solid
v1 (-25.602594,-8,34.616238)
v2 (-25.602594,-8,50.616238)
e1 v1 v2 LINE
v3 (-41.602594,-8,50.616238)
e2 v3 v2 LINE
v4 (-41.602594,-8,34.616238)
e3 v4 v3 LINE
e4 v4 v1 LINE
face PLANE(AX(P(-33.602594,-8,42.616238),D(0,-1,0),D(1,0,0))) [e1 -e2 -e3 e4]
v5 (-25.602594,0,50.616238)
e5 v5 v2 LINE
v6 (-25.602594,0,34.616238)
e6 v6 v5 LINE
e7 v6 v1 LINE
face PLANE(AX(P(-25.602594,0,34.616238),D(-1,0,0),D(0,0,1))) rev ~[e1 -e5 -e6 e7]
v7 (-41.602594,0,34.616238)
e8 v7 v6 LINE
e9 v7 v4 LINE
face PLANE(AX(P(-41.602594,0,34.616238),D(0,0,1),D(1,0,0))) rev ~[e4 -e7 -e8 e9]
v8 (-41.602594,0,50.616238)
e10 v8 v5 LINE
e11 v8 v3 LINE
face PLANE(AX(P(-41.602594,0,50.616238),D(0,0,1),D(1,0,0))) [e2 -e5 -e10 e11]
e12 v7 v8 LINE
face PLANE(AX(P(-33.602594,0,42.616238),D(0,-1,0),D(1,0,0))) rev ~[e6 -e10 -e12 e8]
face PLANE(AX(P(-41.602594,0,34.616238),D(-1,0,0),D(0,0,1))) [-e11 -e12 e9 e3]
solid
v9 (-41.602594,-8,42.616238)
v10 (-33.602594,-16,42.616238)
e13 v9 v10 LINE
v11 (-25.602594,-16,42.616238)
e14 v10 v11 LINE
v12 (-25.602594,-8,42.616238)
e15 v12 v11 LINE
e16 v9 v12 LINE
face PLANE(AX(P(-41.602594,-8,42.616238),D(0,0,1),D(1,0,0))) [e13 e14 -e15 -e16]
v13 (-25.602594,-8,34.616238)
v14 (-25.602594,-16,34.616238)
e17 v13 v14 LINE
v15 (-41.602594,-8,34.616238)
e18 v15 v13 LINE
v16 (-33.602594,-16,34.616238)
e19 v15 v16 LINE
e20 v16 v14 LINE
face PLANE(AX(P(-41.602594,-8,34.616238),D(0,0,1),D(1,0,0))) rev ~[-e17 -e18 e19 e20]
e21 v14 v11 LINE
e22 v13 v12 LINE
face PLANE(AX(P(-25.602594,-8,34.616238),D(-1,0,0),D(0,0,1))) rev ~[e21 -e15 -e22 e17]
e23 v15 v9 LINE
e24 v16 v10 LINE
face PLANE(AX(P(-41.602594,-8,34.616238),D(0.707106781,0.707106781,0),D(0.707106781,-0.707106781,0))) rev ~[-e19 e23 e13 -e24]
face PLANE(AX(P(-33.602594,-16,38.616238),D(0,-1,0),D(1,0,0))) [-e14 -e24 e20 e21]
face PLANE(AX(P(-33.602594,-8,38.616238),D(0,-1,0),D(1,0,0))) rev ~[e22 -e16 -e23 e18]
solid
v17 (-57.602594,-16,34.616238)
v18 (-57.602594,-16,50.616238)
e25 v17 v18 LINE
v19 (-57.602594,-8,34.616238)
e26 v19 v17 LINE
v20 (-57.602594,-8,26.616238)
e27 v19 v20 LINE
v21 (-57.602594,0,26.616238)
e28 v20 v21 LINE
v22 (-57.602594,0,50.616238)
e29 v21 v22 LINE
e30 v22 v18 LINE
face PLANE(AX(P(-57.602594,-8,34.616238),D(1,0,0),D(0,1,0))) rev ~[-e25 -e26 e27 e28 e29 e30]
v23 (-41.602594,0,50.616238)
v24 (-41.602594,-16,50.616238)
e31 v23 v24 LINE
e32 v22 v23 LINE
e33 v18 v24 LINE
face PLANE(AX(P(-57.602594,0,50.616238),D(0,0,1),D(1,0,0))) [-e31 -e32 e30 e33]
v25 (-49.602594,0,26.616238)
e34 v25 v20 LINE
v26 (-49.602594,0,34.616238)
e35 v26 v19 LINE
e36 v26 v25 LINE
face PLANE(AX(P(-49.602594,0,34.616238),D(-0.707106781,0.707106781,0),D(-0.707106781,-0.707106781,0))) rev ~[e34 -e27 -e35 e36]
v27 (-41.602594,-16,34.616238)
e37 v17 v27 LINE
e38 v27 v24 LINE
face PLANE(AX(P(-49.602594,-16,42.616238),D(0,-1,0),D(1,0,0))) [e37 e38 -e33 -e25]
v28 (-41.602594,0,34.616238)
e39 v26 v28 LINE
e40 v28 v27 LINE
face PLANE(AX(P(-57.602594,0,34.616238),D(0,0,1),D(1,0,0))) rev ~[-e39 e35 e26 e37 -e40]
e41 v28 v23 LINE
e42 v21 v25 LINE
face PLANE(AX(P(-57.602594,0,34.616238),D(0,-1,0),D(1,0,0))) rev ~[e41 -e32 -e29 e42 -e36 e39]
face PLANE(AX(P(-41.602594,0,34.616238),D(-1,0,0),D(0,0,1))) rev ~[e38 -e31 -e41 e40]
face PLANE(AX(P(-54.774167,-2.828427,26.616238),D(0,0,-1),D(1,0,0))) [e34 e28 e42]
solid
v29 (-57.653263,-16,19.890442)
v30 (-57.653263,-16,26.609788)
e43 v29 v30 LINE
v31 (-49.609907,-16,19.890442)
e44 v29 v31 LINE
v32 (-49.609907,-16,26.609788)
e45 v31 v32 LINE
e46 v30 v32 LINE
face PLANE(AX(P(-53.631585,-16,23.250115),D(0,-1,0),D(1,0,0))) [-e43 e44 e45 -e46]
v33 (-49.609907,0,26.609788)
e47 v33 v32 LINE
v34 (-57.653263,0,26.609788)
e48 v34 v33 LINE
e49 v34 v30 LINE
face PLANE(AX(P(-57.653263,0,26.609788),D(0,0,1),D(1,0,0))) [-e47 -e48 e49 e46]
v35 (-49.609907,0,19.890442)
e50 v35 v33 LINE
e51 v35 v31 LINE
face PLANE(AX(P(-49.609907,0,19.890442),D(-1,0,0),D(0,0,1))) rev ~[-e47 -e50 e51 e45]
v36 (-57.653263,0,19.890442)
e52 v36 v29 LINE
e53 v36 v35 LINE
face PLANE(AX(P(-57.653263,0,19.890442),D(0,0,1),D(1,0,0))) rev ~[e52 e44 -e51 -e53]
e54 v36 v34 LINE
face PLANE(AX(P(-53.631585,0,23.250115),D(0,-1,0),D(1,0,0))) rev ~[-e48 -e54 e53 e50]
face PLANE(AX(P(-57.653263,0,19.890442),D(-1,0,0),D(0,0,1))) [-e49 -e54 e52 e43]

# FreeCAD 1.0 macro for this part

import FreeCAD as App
import Part
import Sketcher
from FreeCAD import Vector
Q = App.Units.Quantity

doc = App.newDocument("Part")
params = doc.addObject("Spreadsheet::Sheet", "Params")
for row, (alias, value) in enumerate([
    ("sketch1_width", "16 mm"),
    ("pad1_length", "8 mm"),
    ("sketch2_width", "16 mm"),
    ("pad2_length", "16 mm"),
    ("sketch3_width", "8 mm"),
    ("pad3_length", "8 mm"),
    ("sketch4_width", "16 mm"),
    ("sketch4_height", "8 mm"),
    ("pad4_length", "8 mm"),
    ("sketch5_width", "8 mm"),
    ("pocket1_length", "8 mm"),
    ("pad5_length", "16 mm"),
], start=1):
    params.set(f"A{row}", alias)
    params.set(f"B{row}", "=" + value)
    params.setAlias(f"B{row}", alias)

body = doc.addObject("PartDesign::Body", "Body")

# Sketch on XZ plane
sketch1 = body.newObject("Sketcher::SketchObject", "Sketch")
sketch1.AttachmentSupport = (doc.getObject("XZ_Plane"), [""])
sketch1.MapMode = "FlatFace"
sketch1.addGeometry([
    Part.LineSegment(Vector(-42, 51, 0), Vector(-42, 35, 0)),
    Part.LineSegment(Vector(-42, 35, 0), Vector(-26, 35, 0)),
    Part.LineSegment(Vector(-26, 35, 0), Vector(-26, 51, 0)),
    Part.LineSegment(Vector(-26, 51, 0), Vector(-42, 51, 0)),
], False)
sketch1.addConstraint([
    Sketcher.Constraint("Coincident", 0, 2, 1, 1),
    Sketcher.Constraint("Coincident", 1, 2, 2, 1),
    Sketcher.Constraint("Coincident", 2, 2, 3, 1),
    Sketcher.Constraint("Coincident", 3, 2, 0, 1),
    Sketcher.Constraint("Vertical", 0),
    Sketcher.Constraint("Horizontal", 1),
    Sketcher.Constraint("Vertical", 2),
    Sketcher.Constraint("Horizontal", 3),
    Sketcher.Constraint("Equal", 3, 0),
    Sketcher.Constraint("DistanceX", 1, 1, 1, 2, Q("16 mm")),
    Sketcher.Constraint("DistanceY", -1, 1, 0, 2, Q("34.616238 mm")),
    Sketcher.Constraint("DistanceX", 0, 2, -1, 1, Q("41.602594 mm")),
])
sketch1.setExpression("Constraints[9]", "Params.sketch1_width")
pad1 = body.newObject("PartDesign::Pad", "Pad")
pad1.Profile = sketch1
pad1.setExpression("Length", "Params.pad1_length")
body2 = doc.addObject("PartDesign::Body", "Body001")

# Sketch on XZ plane
sketch2 = body2.newObject("Sketcher::SketchObject", "Sketch001")
sketch2.AttachmentSupport = (doc.getObject("XZ_Plane001"), [""])
sketch2.MapMode = "FlatFace"
sketch2.addGeometry([
    Part.LineSegment(Vector(-58, 51, 0), Vector(-58, 35, 0)),
    Part.LineSegment(Vector(-58, 35, 0), Vector(-42, 35, 0)),
    Part.LineSegment(Vector(-42, 35, 0), Vector(-42, 51, 0)),
    Part.LineSegment(Vector(-42, 51, 0), Vector(-58, 51, 0)),
], False)
sketch2.addConstraint([
    Sketcher.Constraint("Coincident", 0, 2, 1, 1),
    Sketcher.Constraint("Coincident", 1, 2, 2, 1),
    Sketcher.Constraint("Coincident", 2, 2, 3, 1),
    Sketcher.Constraint("Coincident", 3, 2, 0, 1),
    Sketcher.Constraint("Vertical", 0),
    Sketcher.Constraint("Horizontal", 1),
    Sketcher.Constraint("Vertical", 2),
    Sketcher.Constraint("Horizontal", 3),
    Sketcher.Constraint("Equal", 3, 0),
    Sketcher.Constraint("DistanceX", 1, 1, 1, 2, Q("16 mm")),
    Sketcher.Constraint("DistanceY", -1, 1, 0, 2, Q("34.616238 mm")),
    Sketcher.Constraint("DistanceX", 0, 2, -1, 1, Q("57.602594 mm")),
])
sketch2.setExpression("Constraints[9]", "Params.sketch2_width")
pad2 = body2.newObject("PartDesign::Pad", "Pad001")
pad2.Profile = sketch2
pad2.setExpression("Length", "Params.pad2_length")

# Sketch on XY plane
sketch3 = body2.newObject("Sketcher::SketchObject", "Sketch002")
sketch3.AttachmentSupport = (doc.getObject("XY_Plane001"), [""])
sketch3.MapMode = "FlatFace"
sketch3.AttachmentOffset = App.Placement(Vector(0, 0, 34.616238), App.Rotation())
sketch3.addGeometry([
    Part.LineSegment(Vector(-50, 0, 0), Vector(-58, -8, 0)),
    Part.LineSegment(Vector(-58, -8, 0), Vector(-58, 0, 0)),
    Part.LineSegment(Vector(-58, 0, 0), Vector(-50, 0, 0)),
], False)
sketch3.addConstraint([
    Sketcher.Constraint("Coincident", 0, 2, 1, 1),
    Sketcher.Constraint("Coincident", 1, 2, 2, 1),
    Sketcher.Constraint("Coincident", 2, 2, 0, 1),
    Sketcher.Constraint("Vertical", 1),
    Sketcher.Constraint("Horizontal", 2),
    Sketcher.Constraint("PointOnObject", 1, 2, -1),
    Sketcher.Constraint("Equal", 2, 1),
    Sketcher.Constraint("DistanceX", 2, 1, 2, 2, Q("8 mm")),
    Sketcher.Constraint("DistanceX", 0, 2, -1, 1, Q("57.602594 mm")),
])
sketch3.setExpression("Constraints[7]", "Params.sketch3_width")
pad3 = body2.newObject("PartDesign::Pad", "Pad002")
pad3.Profile = sketch3
pad3.setExpression("Length", "Params.pad3_length")
pad3.Reversed = True
body3 = doc.addObject("PartDesign::Body", "Body002")

# Sketch on XZ plane
sketch4 = body3.newObject("Sketcher::SketchObject", "Sketch003")
sketch4.AttachmentSupport = (doc.getObject("XZ_Plane002"), [""])
sketch4.MapMode = "FlatFace"
sketch4.AttachmentOffset = App.Placement(Vector(0, 0, 8), App.Rotation())
sketch4.addGeometry([
    Part.LineSegment(Vector(-42, 43, 0), Vector(-42, 35, 0)),
    Part.LineSegment(Vector(-42, 35, 0), Vector(-26, 35, 0)),
    Part.LineSegment(Vector(-26, 35, 0), Vector(-26, 43, 0)),
    Part.LineSegment(Vector(-26, 43, 0), Vector(-42, 43, 0)),
], False)
sketch4.addConstraint([
    Sketcher.Constraint("Coincident", 0, 2, 1, 1),
    Sketcher.Constraint("Coincident", 1, 2, 2, 1),
    Sketcher.Constraint("Coincident", 2, 2, 3, 1),
    Sketcher.Constraint("Coincident", 3, 2, 0, 1),
    Sketcher.Constraint("Vertical", 0),
    Sketcher.Constraint("Horizontal", 1),
    Sketcher.Constraint("Vertical", 2),
    Sketcher.Constraint("Horizontal", 3),
    Sketcher.Constraint("DistanceX", 1, 1, 1, 2, Q("16 mm")),
    Sketcher.Constraint("DistanceY", 0, 2, 0, 1, Q("8 mm")),
    Sketcher.Constraint("DistanceY", -1, 1, 0, 2, Q("34.616238 mm")),
    Sketcher.Constraint("DistanceX", 0, 2, -1, 1, Q("41.602594 mm")),
])
sketch4.setExpression("Constraints[8]", "Params.sketch4_width")
sketch4.setExpression("Constraints[9]", "Params.sketch4_height")
pad4 = body3.newObject("PartDesign::Pad", "Pad003")
pad4.Profile = sketch4
pad4.setExpression("Length", "Params.pad4_length")

# Sketch on XY plane
sketch5 = body3.newObject("Sketcher::SketchObject", "Sketch004")
sketch5.AttachmentSupport = (doc.getObject("XY_Plane002"), [""])
sketch5.MapMode = "FlatFace"
sketch5.AttachmentOffset = App.Placement(Vector(0, 0, 34.616238), App.Rotation())
sketch5.addGeometry([
    Part.LineSegment(Vector(-42, -8, 0), Vector(-34, -16, 0)),
    Part.LineSegment(Vector(-34, -16, 0), Vector(-42, -16, 0)),
    Part.LineSegment(Vector(-42, -16, 0), Vector(-42, -8, 0)),
], False)
sketch5.addConstraint([
    Sketcher.Constraint("Coincident", 0, 2, 1, 1),
    Sketcher.Constraint("Coincident", 1, 2, 2, 1),
    Sketcher.Constraint("Coincident", 2, 2, 0, 1),
    Sketcher.Constraint("Horizontal", 1),
    Sketcher.Constraint("Vertical", 2),
    Sketcher.Constraint("Equal", 1, 2),
    Sketcher.Constraint("DistanceX", 1, 2, 1, 1, Q("8 mm")),
    Sketcher.Constraint("DistanceY", 0, 2, -1, 1, Q("16 mm")),
    Sketcher.Constraint("DistanceX", 0, 2, -1, 1, Q("33.602594 mm")),
])
sketch5.setExpression("Constraints[6]", "Params.sketch5_width")
pocket1 = body3.newObject("PartDesign::Pocket", "Pocket")
pocket1.Profile = sketch5
pocket1.setExpression("Length", "Params.pocket1_length")
pocket1.Reversed = True
body4 = doc.addObject("PartDesign::Body", "Body003")

# Sketch on XZ plane
sketch6 = body4.newObject("Sketcher::SketchObject", "Sketch005")
sketch6.AttachmentSupport = (doc.getObject("XZ_Plane003"), [""])
sketch6.MapMode = "FlatFace"
sketch6.addGeometry([
    Part.LineSegment(Vector(-58, 27, 0), Vector(-58, 20, 0)),
    Part.LineSegment(Vector(-58, 20, 0), Vector(-50, 20, 0)),
    Part.LineSegment(Vector(-50, 20, 0), Vector(-50, 27, 0)),
    Part.LineSegment(Vector(-50, 27, 0), Vector(-58, 27, 0)),
], False)
sketch6.addConstraint([
    Sketcher.Constraint("Coincident", 0, 2, 1, 1),
    Sketcher.Constraint("Coincident", 1, 2, 2, 1),
    Sketcher.Constraint("Coincident", 2, 2, 3, 1),
    Sketcher.Constraint("Coincident", 3, 2, 0, 1),
    Sketcher.Constraint("Vertical", 0),
    Sketcher.Constraint("Horizontal", 1),
    Sketcher.Constraint("Vertical", 2),
    Sketcher.Constraint("Horizontal", 3),
    Sketcher.Constraint("DistanceX", 1, 1, 1, 2, Q("8.043356 mm")),
    Sketcher.Constraint("DistanceY", 0, 2, 0, 1, Q("6.719346 mm")),
    Sketcher.Constraint("DistanceY", -1, 1, 0, 2, Q("19.890442 mm")),
    Sketcher.Constraint("DistanceX", 0, 2, -1, 1, Q("57.653263 mm")),
])
pad5 = body4.newObject("PartDesign::Pad", "Pad004")
pad5.Profile = sketch6
pad5.setExpression("Length", "Params.pad5_length")

doc.recompute()
